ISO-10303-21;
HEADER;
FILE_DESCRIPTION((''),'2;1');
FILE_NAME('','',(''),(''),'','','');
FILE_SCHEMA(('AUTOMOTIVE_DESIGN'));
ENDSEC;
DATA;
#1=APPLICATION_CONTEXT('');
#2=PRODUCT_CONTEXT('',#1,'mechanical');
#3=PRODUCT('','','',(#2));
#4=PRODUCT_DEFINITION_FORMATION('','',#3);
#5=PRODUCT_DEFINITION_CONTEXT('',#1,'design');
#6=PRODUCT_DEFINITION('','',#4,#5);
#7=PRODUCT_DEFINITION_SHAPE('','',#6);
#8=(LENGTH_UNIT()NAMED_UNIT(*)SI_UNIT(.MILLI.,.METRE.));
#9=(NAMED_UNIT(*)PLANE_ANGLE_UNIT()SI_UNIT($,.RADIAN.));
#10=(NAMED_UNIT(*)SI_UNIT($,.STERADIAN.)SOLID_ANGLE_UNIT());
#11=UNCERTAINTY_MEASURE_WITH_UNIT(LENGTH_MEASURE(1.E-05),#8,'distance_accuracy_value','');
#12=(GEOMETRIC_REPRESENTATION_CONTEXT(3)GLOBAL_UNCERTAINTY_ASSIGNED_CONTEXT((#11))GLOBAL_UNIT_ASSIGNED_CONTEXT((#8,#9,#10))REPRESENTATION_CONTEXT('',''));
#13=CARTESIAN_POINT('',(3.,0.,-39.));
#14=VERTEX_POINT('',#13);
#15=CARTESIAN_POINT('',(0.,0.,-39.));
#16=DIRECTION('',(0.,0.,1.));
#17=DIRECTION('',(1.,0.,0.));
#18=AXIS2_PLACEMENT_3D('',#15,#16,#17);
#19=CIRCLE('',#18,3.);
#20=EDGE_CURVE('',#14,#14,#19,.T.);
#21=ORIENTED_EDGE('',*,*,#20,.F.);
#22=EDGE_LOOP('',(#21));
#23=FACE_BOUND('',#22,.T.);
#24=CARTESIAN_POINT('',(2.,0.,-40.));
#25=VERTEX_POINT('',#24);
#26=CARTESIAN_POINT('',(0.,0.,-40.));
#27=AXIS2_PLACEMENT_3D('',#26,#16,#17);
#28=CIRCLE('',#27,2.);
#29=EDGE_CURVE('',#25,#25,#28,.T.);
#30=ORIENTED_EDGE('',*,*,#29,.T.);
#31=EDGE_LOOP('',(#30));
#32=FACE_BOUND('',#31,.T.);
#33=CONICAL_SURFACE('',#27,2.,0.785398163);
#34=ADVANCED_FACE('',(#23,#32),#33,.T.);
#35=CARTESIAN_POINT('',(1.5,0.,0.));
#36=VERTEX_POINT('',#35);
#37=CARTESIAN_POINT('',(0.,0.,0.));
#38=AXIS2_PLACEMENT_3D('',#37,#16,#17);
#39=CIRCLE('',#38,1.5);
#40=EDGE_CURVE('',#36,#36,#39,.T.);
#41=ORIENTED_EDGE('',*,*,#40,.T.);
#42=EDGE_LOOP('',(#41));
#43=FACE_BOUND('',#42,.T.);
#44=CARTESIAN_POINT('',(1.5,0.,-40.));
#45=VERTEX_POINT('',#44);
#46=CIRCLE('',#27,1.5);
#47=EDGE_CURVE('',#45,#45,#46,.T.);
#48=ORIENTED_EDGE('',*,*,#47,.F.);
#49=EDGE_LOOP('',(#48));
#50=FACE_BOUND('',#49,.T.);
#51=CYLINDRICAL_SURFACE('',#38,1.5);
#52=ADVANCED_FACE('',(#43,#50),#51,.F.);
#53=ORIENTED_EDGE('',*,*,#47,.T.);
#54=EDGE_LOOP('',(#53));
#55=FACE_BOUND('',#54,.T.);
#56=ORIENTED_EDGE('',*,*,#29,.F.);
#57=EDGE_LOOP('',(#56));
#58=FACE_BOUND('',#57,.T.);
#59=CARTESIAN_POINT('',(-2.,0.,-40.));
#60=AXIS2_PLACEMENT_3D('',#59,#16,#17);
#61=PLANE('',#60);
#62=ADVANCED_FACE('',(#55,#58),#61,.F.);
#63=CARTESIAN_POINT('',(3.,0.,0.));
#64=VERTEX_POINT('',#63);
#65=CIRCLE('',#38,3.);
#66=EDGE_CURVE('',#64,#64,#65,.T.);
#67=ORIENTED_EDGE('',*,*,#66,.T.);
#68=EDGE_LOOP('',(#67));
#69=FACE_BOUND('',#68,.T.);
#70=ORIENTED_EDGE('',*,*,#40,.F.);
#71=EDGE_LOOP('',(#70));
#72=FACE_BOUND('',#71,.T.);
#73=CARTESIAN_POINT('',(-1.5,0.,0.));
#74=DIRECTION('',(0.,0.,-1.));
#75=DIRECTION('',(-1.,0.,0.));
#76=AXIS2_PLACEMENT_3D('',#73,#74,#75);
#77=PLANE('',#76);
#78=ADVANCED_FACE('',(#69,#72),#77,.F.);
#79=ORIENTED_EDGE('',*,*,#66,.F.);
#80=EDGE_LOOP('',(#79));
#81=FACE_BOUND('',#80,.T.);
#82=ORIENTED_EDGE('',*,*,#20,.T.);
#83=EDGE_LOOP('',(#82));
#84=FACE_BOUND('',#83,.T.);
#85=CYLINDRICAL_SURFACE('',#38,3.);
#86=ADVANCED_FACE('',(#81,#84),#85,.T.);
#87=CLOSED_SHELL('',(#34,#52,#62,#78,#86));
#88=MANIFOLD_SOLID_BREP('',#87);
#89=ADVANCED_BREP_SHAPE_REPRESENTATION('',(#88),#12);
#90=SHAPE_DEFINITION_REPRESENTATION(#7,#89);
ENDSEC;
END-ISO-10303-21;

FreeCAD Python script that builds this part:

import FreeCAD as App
import Part
import Sketcher

V = App.Vector
Q = App.Units.Quantity


def add_polygon(sketch, points):
    """Adds a closed chain of lines whose ends are joined by coincident constraints."""
    first, n = sketch.GeometryCount, len(points)
    for a, b in zip(points, points[1:] + points[:1]):
        sketch.addGeometry(Part.LineSegment(App.Vector(*a, 0), App.Vector(*b, 0)), False)
    for i in range(n):
        sketch.addConstraint(Sketcher.Constraint("Coincident", first + i, 2, first + (i + 1) % n, 1))

doc = App.newDocument("Part")
body = doc.addObject("PartDesign::Body", "Body")

sketch1 = body.newObject("Sketcher::SketchObject", "Sketch")
sketch1.AttachmentSupport = (doc.getObject("XZ_Plane"), [""])
sketch1.MapMode = "FlatFace"
add_polygon(sketch1, [(-2, -40), (-3, -39), (-3, 0), (-1.5, 0), (-1.5, -40)])
sketch1.addConstraint(Sketcher.Constraint("Vertical", 1))
sketch1.addConstraint(Sketcher.Constraint("Horizontal", 2))
sketch1.addConstraint(Sketcher.Constraint("Vertical", 3))
sketch1.addConstraint(Sketcher.Constraint("Horizontal", 4))
sketch1.addConstraint(Sketcher.Constraint("PointOnObject", 1, 2, -1))
sketch1.addConstraint(Sketcher.Constraint("DistanceY", 1, 1, 1, 2, 39.0))
sketch1.addConstraint(Sketcher.Constraint("DistanceY", 3, 2, 3, 1, 40.0))
sketch1.addConstraint(Sketcher.Constraint("Angle", 0, Q("135 deg")))
sketch1.addConstraint(Sketcher.Constraint("DistanceX", 2, 1, 2, 2, 1.5))
sketch1.addConstraint(Sketcher.Constraint("DistanceX", 0, 2, -1, 1, 3.0))
revolution = body.newObject("PartDesign::Revolution", "Revolution")
revolution.Profile = sketch1
revolution.ReferenceAxis = (sketch1, ["V_Axis"])
revolution.Angle = 360

doc.recompute()
